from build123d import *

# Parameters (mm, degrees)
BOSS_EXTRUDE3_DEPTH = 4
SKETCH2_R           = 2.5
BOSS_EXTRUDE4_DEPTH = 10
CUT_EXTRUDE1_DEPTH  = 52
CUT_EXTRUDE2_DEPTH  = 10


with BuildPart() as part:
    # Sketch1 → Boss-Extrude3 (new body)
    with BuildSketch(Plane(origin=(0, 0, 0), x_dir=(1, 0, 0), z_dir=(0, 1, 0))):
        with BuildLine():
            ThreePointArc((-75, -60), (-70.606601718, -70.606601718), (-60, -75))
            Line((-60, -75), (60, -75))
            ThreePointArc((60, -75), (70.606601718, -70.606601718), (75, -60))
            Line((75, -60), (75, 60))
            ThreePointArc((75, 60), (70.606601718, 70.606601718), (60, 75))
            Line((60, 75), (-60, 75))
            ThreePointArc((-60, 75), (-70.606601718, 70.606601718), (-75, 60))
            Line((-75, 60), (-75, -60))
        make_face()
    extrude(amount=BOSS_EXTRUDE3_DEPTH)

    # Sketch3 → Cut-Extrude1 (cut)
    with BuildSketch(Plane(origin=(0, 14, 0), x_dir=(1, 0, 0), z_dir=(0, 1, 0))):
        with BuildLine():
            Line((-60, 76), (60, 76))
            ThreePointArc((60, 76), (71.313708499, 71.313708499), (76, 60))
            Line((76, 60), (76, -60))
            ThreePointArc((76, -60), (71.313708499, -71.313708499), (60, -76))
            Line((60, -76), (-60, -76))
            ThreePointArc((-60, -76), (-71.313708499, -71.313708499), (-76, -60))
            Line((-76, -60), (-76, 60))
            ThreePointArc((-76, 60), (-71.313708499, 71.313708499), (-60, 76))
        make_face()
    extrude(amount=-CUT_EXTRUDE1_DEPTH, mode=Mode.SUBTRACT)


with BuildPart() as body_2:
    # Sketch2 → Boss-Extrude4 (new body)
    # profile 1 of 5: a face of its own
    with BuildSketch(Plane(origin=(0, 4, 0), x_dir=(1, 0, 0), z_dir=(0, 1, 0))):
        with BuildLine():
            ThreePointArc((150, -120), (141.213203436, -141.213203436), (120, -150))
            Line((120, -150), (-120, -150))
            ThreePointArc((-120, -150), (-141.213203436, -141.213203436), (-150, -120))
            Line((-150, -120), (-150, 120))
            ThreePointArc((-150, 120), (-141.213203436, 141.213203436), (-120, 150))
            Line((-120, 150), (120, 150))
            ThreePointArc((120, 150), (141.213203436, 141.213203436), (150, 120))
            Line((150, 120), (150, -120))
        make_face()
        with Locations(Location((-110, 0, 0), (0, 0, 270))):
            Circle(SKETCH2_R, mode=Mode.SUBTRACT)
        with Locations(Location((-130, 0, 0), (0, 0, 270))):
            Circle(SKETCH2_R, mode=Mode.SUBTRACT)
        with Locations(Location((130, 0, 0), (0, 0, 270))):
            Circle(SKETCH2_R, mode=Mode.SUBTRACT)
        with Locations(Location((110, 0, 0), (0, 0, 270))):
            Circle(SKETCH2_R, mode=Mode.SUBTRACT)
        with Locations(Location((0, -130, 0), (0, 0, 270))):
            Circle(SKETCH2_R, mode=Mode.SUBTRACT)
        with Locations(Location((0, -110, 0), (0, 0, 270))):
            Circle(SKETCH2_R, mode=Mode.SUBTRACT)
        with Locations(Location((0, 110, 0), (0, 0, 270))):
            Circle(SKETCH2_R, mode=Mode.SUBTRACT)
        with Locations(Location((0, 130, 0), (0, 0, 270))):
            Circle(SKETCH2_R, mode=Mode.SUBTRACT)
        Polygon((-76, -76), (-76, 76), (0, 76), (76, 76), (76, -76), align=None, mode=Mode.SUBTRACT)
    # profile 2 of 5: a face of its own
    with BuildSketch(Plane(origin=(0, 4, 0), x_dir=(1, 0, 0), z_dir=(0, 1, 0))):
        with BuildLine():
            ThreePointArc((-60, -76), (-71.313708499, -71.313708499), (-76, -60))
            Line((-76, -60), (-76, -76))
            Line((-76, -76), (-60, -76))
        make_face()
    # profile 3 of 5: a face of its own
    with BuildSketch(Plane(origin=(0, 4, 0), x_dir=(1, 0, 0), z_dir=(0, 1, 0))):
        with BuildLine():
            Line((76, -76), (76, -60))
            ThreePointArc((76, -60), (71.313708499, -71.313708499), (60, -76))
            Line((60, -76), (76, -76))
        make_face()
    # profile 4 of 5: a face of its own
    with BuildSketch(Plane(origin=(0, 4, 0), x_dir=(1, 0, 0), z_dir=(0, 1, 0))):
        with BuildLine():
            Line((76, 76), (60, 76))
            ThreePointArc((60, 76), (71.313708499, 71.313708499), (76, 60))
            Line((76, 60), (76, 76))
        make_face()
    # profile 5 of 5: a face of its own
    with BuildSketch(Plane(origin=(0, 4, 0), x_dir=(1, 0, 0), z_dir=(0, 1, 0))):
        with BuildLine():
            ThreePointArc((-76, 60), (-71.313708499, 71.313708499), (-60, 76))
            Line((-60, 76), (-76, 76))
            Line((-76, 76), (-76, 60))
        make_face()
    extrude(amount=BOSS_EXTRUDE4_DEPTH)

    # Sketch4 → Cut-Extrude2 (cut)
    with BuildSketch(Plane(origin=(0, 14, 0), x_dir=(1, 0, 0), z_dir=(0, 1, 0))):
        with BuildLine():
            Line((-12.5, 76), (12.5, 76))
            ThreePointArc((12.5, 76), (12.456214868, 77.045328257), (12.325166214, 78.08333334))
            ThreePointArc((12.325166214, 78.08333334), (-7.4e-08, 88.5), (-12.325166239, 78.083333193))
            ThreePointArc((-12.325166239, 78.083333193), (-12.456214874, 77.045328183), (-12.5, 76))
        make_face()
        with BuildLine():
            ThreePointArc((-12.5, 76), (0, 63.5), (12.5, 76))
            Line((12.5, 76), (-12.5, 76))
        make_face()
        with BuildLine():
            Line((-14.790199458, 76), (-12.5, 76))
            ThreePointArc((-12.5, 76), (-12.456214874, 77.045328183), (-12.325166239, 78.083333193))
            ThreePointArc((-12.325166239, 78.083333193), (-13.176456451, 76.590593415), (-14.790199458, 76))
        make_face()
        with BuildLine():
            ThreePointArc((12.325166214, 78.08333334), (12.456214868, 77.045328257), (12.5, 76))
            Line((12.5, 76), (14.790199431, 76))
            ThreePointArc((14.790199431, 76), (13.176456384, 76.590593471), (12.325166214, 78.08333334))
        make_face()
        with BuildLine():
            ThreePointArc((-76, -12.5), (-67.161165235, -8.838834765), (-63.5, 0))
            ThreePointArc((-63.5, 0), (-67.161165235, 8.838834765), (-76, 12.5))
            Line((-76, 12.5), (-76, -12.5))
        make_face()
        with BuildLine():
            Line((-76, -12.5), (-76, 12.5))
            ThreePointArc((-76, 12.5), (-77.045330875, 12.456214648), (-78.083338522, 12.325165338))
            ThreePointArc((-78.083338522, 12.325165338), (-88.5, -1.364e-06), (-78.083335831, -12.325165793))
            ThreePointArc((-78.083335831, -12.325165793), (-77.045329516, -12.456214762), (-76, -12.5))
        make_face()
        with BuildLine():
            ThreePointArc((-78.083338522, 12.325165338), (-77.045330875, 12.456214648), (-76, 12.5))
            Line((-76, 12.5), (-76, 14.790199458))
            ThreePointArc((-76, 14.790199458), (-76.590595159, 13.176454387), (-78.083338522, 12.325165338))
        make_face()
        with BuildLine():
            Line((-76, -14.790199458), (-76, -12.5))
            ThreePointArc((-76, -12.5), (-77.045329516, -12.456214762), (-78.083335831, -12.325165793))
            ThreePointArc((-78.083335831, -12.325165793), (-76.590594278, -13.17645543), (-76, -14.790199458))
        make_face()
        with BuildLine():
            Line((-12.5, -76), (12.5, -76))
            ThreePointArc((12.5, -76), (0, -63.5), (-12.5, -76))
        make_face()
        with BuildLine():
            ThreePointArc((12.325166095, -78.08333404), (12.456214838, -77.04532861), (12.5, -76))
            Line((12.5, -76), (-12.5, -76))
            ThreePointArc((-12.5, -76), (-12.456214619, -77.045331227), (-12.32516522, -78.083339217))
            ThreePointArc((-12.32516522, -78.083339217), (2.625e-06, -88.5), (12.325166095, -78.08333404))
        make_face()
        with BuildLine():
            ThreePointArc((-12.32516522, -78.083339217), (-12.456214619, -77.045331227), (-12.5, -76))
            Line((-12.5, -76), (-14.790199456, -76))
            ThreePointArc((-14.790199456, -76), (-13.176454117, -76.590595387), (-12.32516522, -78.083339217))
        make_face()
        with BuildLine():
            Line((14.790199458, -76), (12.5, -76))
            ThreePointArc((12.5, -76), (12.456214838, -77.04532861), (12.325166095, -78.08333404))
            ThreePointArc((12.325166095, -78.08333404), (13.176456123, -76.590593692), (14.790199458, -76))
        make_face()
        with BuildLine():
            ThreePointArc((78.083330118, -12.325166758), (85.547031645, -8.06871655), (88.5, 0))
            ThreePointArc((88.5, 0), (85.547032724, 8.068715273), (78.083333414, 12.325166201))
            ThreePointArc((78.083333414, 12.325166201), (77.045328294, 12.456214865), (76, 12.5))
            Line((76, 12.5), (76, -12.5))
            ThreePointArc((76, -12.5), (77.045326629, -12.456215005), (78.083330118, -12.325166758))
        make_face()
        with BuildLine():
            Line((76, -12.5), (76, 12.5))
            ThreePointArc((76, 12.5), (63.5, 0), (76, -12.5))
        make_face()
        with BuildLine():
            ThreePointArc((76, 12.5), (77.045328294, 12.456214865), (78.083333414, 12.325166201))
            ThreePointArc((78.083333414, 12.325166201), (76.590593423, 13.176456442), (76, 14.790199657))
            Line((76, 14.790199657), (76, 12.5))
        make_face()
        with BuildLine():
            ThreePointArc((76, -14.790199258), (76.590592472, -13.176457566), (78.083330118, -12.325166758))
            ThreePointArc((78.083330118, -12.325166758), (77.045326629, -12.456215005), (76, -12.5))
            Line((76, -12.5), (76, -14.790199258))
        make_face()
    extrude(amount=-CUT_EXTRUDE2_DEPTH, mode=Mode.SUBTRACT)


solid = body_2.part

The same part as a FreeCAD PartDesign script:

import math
import FreeCAD as App
import Part
import Sketcher

V = App.Vector
Q = App.Units.Quantity

doc = App.newDocument("Part")
body = doc.addObject("PartDesign::Body", "Body")

# Sketch on XZ plane
sketch1 = body.newObject("Sketcher::SketchObject", "Sketch")
sketch1.AttachmentSupport = (doc.getObject("XZ_Plane"), [""])
sketch1.MapMode = "FlatFace"
sketch1.addGeometry([
    Part.ArcOfCircle(Part.Circle(V(-60, 60, 0), V(0, 0, 1), 15), math.radians(90), math.radians(180)),  # 0
    Part.LineSegment(V(-60, 75, 0), V(60, 75, 0)),  # 1
    Part.ArcOfCircle(Part.Circle(V(60, 60, 0), V(0, 0, 1), 15), math.radians(0), math.radians(90)),  # 2
    Part.LineSegment(V(75, 60, 0), V(75, -60, 0)),  # 3
    Part.ArcOfCircle(Part.Circle(V(60, -60, 0), V(0, 0, 1), 15), math.radians(-90), math.radians(0)),  # 4
    Part.LineSegment(V(60, -75, 0), V(-60, -75, 0)),  # 5
    Part.ArcOfCircle(Part.Circle(V(-60, -60, 0), V(0, 0, 1), 15), math.radians(180), math.radians(270)),  # 6
    Part.LineSegment(V(-75, -60, 0), V(-75, 60, 0)),  # 7
], False)
sketch1.addConstraint([
    Sketcher.Constraint("Tangent", 0, 1, 1, 1),
    Sketcher.Constraint("Tangent", 1, 2, 2, 2),
    Sketcher.Constraint("Tangent", 2, 1, 3, 1),
    Sketcher.Constraint("Tangent", 3, 2, 4, 2),
    Sketcher.Constraint("Tangent", 4, 1, 5, 1),
    Sketcher.Constraint("Tangent", 5, 2, 6, 2),
    Sketcher.Constraint("Tangent", 6, 1, 7, 1),
    Sketcher.Constraint("Tangent", 7, 2, 0, 2),
    Sketcher.Constraint("Horizontal", 1),
    Sketcher.Constraint("Vertical", 3),
    Sketcher.Constraint("Horizontal", 5),
    Sketcher.Constraint("Vertical", 7),
    Sketcher.Constraint("Equal", 0, 2),
    Sketcher.Constraint("Equal", 2, 4),
    Sketcher.Constraint("Equal", 4, 6),
    Sketcher.Constraint("Symmetric", 0, 3, 4, 3, -1, 1),
    Sketcher.Constraint("Equal", 5, 3),
    Sketcher.Constraint("Radius", 0, Q("15 mm")),
    Sketcher.Constraint("DistanceX", 1, 1, 1, 2, Q("120 mm")),
])
pad1 = body.newObject("PartDesign::Pad", "Pad")
pad1.Profile = sketch1
pad1.Length = 4
pad1.Reversed = True

# Sketch on XZ plane
sketch2 = body.newObject("Sketcher::SketchObject", "Sketch001")
sketch2.AttachmentSupport = (doc.getObject("XZ_Plane"), [""])
sketch2.MapMode = "FlatFace"
sketch2.AttachmentOffset = App.Placement(V(0, 0, -14), App.Rotation())
sketch2.addGeometry([
    Part.LineSegment(V(60, -76, 0), V(-60, -76, 0)),  # 0
    Part.ArcOfCircle(Part.Circle(V(-60, -60, 0), V(0, 0, 1), 16), math.radians(180), math.radians(270)),  # 1
    Part.LineSegment(V(-76, -60, 0), V(-76, 60, 0)),  # 2
    Part.ArcOfCircle(Part.Circle(V(-60, 60, 0), V(0, 0, 1), 16), math.radians(90), math.radians(180)),  # 3
    Part.LineSegment(V(-60, 76, 0), V(60, 76, 0)),  # 4
    Part.ArcOfCircle(Part.Circle(V(60, 60, 0), V(0, 0, 1), 16), math.radians(0), math.radians(90)),  # 5
    Part.LineSegment(V(76, 60, 0), V(76, -60, 0)),  # 6
    Part.ArcOfCircle(Part.Circle(V(60, -60, 0), V(0, 0, 1), 16), math.radians(-90), math.radians(0)),  # 7
], False)
sketch2.addConstraint([
    Sketcher.Constraint("Tangent", 0, 2, 1, 2),
    Sketcher.Constraint("Tangent", 1, 1, 2, 1),
    Sketcher.Constraint("Tangent", 2, 2, 3, 2),
    Sketcher.Constraint("Tangent", 3, 1, 4, 1),
    Sketcher.Constraint("Tangent", 4, 2, 5, 2),
    Sketcher.Constraint("Tangent", 5, 1, 6, 1),
    Sketcher.Constraint("Tangent", 6, 2, 7, 2),
    Sketcher.Constraint("Tangent", 7, 1, 0, 1),
    Sketcher.Constraint("Horizontal", 0),
    Sketcher.Constraint("Vertical", 2),
    Sketcher.Constraint("Horizontal", 4),
    Sketcher.Constraint("Vertical", 6),
    Sketcher.Constraint("Equal", 1, 3),
    Sketcher.Constraint("Equal", 3, 5),
    Sketcher.Constraint("Equal", 5, 7),
    Sketcher.Constraint("Symmetric", 1, 3, 5, 3, -1, 1),
    Sketcher.Constraint("Equal", 4, 2),
    Sketcher.Constraint("Radius", 1, Q("16 mm")),
    Sketcher.Constraint("DistanceX", 0, 2, 0, 1, Q("120 mm")),
])
pocket1 = body.newObject("PartDesign::Pocket", "Pocket")
pocket1.Profile = sketch2
pocket1.Length = 52
pocket1.Reversed = True
body2 = doc.addObject("PartDesign::Body", "Body001")

# Sketch on XZ plane
sketch3 = body2.newObject("Sketcher::SketchObject", "Sketch002")
sketch3.AttachmentSupport = (doc.getObject("XZ_Plane001"), [""])
sketch3.MapMode = "FlatFace"
sketch3.AttachmentOffset = App.Placement(V(0, 0, -4), App.Rotation())
sketch3.addGeometry([
    Part.ArcOfCircle(Part.Circle(V(120, 120, 0), V(0, 0, 1), 30), math.radians(0), math.radians(90)),  # 0
    Part.LineSegment(V(150, 120, 0), V(150, -120, 0)),  # 1
    Part.ArcOfCircle(Part.Circle(V(120, -120, 0), V(0, 0, 1), 30), math.radians(-90), math.radians(0)),  # 2
    Part.LineSegment(V(120, -150, 0), V(-120, -150, 0)),  # 3
    Part.ArcOfCircle(Part.Circle(V(-120, -120, 0), V(0, 0, 1), 30), math.radians(180), math.radians(270)),  # 4
    Part.LineSegment(V(-150, -120, 0), V(-150, 120, 0)),  # 5
    Part.ArcOfCircle(Part.Circle(V(-120, 120, 0), V(0, 0, 1), 30), math.radians(90), math.radians(180)),  # 6
    Part.LineSegment(V(-120, 150, 0), V(120, 150, 0)),  # 7
    Part.Circle(V(0, 130, 0), V(0, 0, 1), 2.5),  # 8
    Part.Circle(V(0, 110, 0), V(0, 0, 1), 2.5),  # 9
    Part.Circle(V(130, 0, 0), V(0, 0, 1), 2.5),  # 10
    Part.Circle(V(110, 0, 0), V(0, 0, 1), 2.5),  # 11
    Part.LineSegment(V(-76, 60, 0), V(-76, -60, 0)),  # 12
    Part.ArcOfCircle(Part.Circle(V(-60, -60, 0), V(0, 0, 1), 16), math.radians(180), math.radians(270)),  # 13
    Part.LineSegment(V(-60, -76, 0), V(60, -76, 0)),  # 14
    Part.ArcOfCircle(Part.Circle(V(60, -60, 0), V(0, 0, 1), 16), math.radians(-90), math.radians(0)),  # 15
    Part.LineSegment(V(76, -60, 0), V(76, 60, 0)),  # 16
    Part.ArcOfCircle(Part.Circle(V(60, 60, 0), V(0, 0, 1), 16), math.radians(0), math.radians(90)),  # 17
    Part.LineSegment(V(60, 76, 0), V(-60, 76, 0)),  # 18
    Part.ArcOfCircle(Part.Circle(V(-60, 60, 0), V(0, 0, 1), 16), math.radians(90), math.radians(180)),  # 19
    Part.Circle(V(-110, 0, 0), V(0, 0, 1), 2.5),  # 20
    Part.Circle(V(-130, 0, 0), V(0, 0, 1), 2.5),  # 21
    Part.Circle(V(0, -110, 0), V(0, 0, 1), 2.5),  # 22
    Part.Circle(V(0, -130, 0), V(0, 0, 1), 2.5),  # 23
], False)
sketch3.addConstraint([
    Sketcher.Constraint("Tangent", 0, 1, 1, 1),
    Sketcher.Constraint("Tangent", 1, 2, 2, 2),
    Sketcher.Constraint("Tangent", 2, 1, 3, 1),
    Sketcher.Constraint("Tangent", 3, 2, 4, 2),
    Sketcher.Constraint("Tangent", 4, 1, 5, 1),
    Sketcher.Constraint("Tangent", 5, 2, 6, 2),
    Sketcher.Constraint("Tangent", 6, 1, 7, 1),
    Sketcher.Constraint("Tangent", 7, 2, 0, 2),
    Sketcher.Constraint("Tangent", 12, 2, 13, 1),
    Sketcher.Constraint("Tangent", 13, 2, 14, 1),
    Sketcher.Constraint("Tangent", 14, 2, 15, 1),
    Sketcher.Constraint("Tangent", 15, 2, 16, 1),
    Sketcher.Constraint("Tangent", 16, 2, 17, 1),
    Sketcher.Constraint("Tangent", 17, 2, 18, 1),
    Sketcher.Constraint("Tangent", 18, 2, 19, 1),
    Sketcher.Constraint("Tangent", 19, 2, 12, 1),
    Sketcher.Constraint("Vertical", 1),
    Sketcher.Constraint("Horizontal", 3),
    Sketcher.Constraint("Vertical", 5),
    Sketcher.Constraint("Horizontal", 7),
    Sketcher.Constraint("Vertical", 12),
    Sketcher.Constraint("Horizontal", 14),
    Sketcher.Constraint("Vertical", 16),
    Sketcher.Constraint("Horizontal", 18),
    Sketcher.Constraint("Equal", 0, 2),
    Sketcher.Constraint("Equal", 2, 4),
    Sketcher.Constraint("Equal", 4, 6),
    Sketcher.Constraint("Equal", 8, 9),
    Sketcher.Constraint("Equal", 9, 10),
    Sketcher.Constraint("Equal", 10, 11),
    Sketcher.Constraint("Equal", 13, 15),
    Sketcher.Constraint("Equal", 15, 17),
    Sketcher.Constraint("Equal", 17, 19),
    Sketcher.Constraint("Equal", 11, 20),
    Sketcher.Constraint("Equal", 20, 21),
    Sketcher.Constraint("Equal", 21, 22),
    Sketcher.Constraint("Equal", 22, 23),
    Sketcher.Constraint("Symmetric", 0, 3, 4, 3, -1, 1),
    Sketcher.Constraint("Symmetric", 13, 3, 17, 3, -1, 1),
    Sketcher.Constraint("Symmetric", 11, 3, 20, 3, -1, 1),
    Sketcher.Constraint("Symmetric", 10, 3, 21, 3, -1, 1),
    Sketcher.Constraint("Symmetric", 9, 3, 22, 3, -1, 1),
    Sketcher.Constraint("Symmetric", 8, 3, 23, 3, -1, 1),
    Sketcher.Constraint("PointOnObject", 8, 3, -2),
    Sketcher.Constraint("PointOnObject", 9, 3, -2),
    Sketcher.Constraint("PointOnObject", 10, 3, -1),
    Sketcher.Constraint("PointOnObject", 11, 3, -1),
    Sketcher.Constraint("Equal", 7, 1),
    Sketcher.Constraint("Equal", 18, 12),
    Sketcher.Constraint("Diameter", 8, Q("5 mm")),
    Sketcher.Constraint("Radius", 0, Q("30 mm")),
    Sketcher.Constraint("Radius", 13, Q("16 mm")),
    Sketcher.Constraint("DistanceX", 3, 2, 3, 1, Q("240 mm")),
    Sketcher.Constraint("DistanceX", 14, 1, 14, 2, Q("120 mm")),
    Sketcher.Constraint("DistanceY", -1, 1, 8, 3, Q("130 mm")),
    Sketcher.Constraint("DistanceY", -1, 1, 9, 3, Q("110 mm")),
    Sketcher.Constraint("DistanceX", -1, 1, 10, 3, Q("130 mm")),
    Sketcher.Constraint("DistanceX", -1, 1, 11, 3, Q("110 mm")),
])
pad2 = body2.newObject("PartDesign::Pad", "Pad001")
pad2.Profile = sketch3
pad2.Length = 10
pad2.Reversed = True

# Sketch on XZ plane
sketch4 = body2.newObject("Sketcher::SketchObject", "Sketch003")
sketch4.AttachmentSupport = (doc.getObject("XZ_Plane001"), [""])
sketch4.MapMode = "FlatFace"
sketch4.AttachmentOffset = App.Placement(V(0, 0, -14), App.Rotation())
sketch4.addGeometry([
    Part.ArcOfCircle(Part.Circle(V(0, -76, 0), V(0, 0, 1), 12.5), math.radians(-170), math.radians(-10)),  # 0
    Part.ArcOfCircle(Part.Circle(V(-14.8, -78.5, 0), V(0, 0, 1), 2.5), math.radians(10), math.radians(90)),  # 1
    Part.LineSegment(V(-14.8, -76, 0), V(-12.5, -76, 0)),  # 2
    Part.ArcOfCircle(Part.Circle(V(0, -76, 0), V(0, 0, 1), 12.5), math.radians(0), math.radians(180)),  # 3
    Part.LineSegment(V(12.5, -76, 0), V(14.8, -76, 0)),  # 4
    Part.ArcOfCircle(Part.Circle(V(14.8, -78.5, 0), V(0, 0, 1), 2.5), math.radians(90), math.radians(170)),  # 5
    Part.ArcOfCircle(Part.Circle(V(-76, 0, 0), V(0, 0, 1), 12.5), math.radians(0), math.radians(90)),  # 6
    Part.ArcOfCircle(Part.Circle(V(-76, 0, 0), V(0, 0, 1), 12.5), math.radians(-90), math.radians(0)),  # 7
    Part.LineSegment(V(-76, -12.5, 0), V(-76, -14.8, 0)),  # 8
    Part.ArcOfCircle(Part.Circle(V(-78.5, -14.8, 0), V(0, 0, 1), 2.5), math.radians(0), math.radians(80)),  # 9
    Part.ArcOfCircle(Part.Circle(V(-76, 0, 0), V(0, 0, 1), 12.5), math.radians(100), math.radians(260)),  # 10
    Part.ArcOfCircle(Part.Circle(V(-78.5, 14.8, 0), V(0, 0, 1), 2.5), math.radians(-80), math.radians(0)),  # 11
    Part.LineSegment(V(-76, 14.8, 0), V(-76, 12.5, 0)),  # 12
    Part.ArcOfCircle(Part.Circle(V(0, 76, 0), V(0, 0, 1), 12.5), math.radians(180), math.radians(360)),  # 13
    Part.LineSegment(V(-12.5, 76, 0), V(-14.8, 76, 0)),  # 14
    Part.ArcOfCircle(Part.Circle(V(-14.8, 78.5, 0), V(0, 0, 1), 2.5), math.radians(-90), math.radians(-10)),  # 15
    Part.ArcOfCircle(Part.Circle(V(0, 76, 0), V(0, 0, 1), 12.5), math.radians(10), math.radians(170)),  # 16
    Part.ArcOfCircle(Part.Circle(V(14.8, 78.5, 0), V(0, 0, 1), 2.5), math.radians(-170), math.radians(-90)),  # 17
    Part.LineSegment(V(14.8, 76, 0), V(12.5, 76, 0)),  # 18
    Part.ArcOfCircle(Part.Circle(V(76, 0, 0), V(0, 0, 1), 12.5), math.radians(90), math.radians(270)),  # 19
    Part.LineSegment(V(76, 12.5, 0), V(76, 14.8, 0)),  # 20
    Part.ArcOfCircle(Part.Circle(V(78.5, 14.8, 0), V(0, 0, 1), 2.5), math.radians(-180), math.radians(-100)),  # 21
    Part.ArcOfCircle(Part.Circle(V(76, 0, 0), V(0, 0, 1), 12.5), math.radians(0), math.radians(80)),  # 22
    Part.ArcOfCircle(Part.Circle(V(76, 0, 0), V(0, 0, 1), 12.5), math.radians(-80), math.radians(0)),  # 23
    Part.ArcOfCircle(Part.Circle(V(78.5, -14.8, 0), V(0, 0, 1), 2.5), math.radians(100), math.radians(180)),  # 24
    Part.LineSegment(V(76, -14.8, 0), V(76, -12.5, 0)),  # 25
], False)
sketch4.addConstraint([
    Sketcher.Constraint("Tangent", 0, 1, 1, 1),
    Sketcher.Constraint("Tangent", 1, 2, 2, 1),
    Sketcher.Constraint("Coincident", 2, 2, 3, 2),
    Sketcher.Constraint("Coincident", 3, 1, 4, 1),
    Sketcher.Constraint("Tangent", 4, 2, 5, 1),
    Sketcher.Constraint("Tangent", 5, 2, 0, 2),
    Sketcher.Constraint("Tangent", 6, 1, 7, 2),
    Sketcher.Constraint("Coincident", 7, 1, 8, 1),
    Sketcher.Constraint("Tangent", 8, 2, 9, 1),
    Sketcher.Constraint("Coincident", 9, 2, 10, 2),
    Sketcher.Constraint("Tangent", 10, 1, 11, 1),
    Sketcher.Constraint("Tangent", 11, 2, 12, 1),
    Sketcher.Constraint("Coincident", 12, 2, 6, 2),
    Sketcher.Constraint("Coincident", 13, 1, 14, 1),
    Sketcher.Constraint("Tangent", 14, 2, 15, 1),
    Sketcher.Constraint("Coincident", 15, 2, 16, 2),
    Sketcher.Constraint("Tangent", 16, 1, 17, 1),
    Sketcher.Constraint("Tangent", 17, 2, 18, 1),
    Sketcher.Constraint("Coincident", 18, 2, 13, 2),
    Sketcher.Constraint("Coincident", 19, 1, 20, 1),
    Sketcher.Constraint("Tangent", 20, 2, 21, 1),
    Sketcher.Constraint("Tangent", 21, 2, 22, 2),
    Sketcher.Constraint("Tangent", 22, 1, 23, 2),
    Sketcher.Constraint("Tangent", 23, 1, 24, 1),
    Sketcher.Constraint("Tangent", 24, 2, 25, 1),
    Sketcher.Constraint("Coincident", 25, 2, 19, 2),
    Sketcher.Constraint("Horizontal", 2),
    Sketcher.Constraint("Horizontal", 4),
    Sketcher.Constraint("Vertical", 8),
    Sketcher.Constraint("Vertical", 12),
    Sketcher.Constraint("Horizontal", 14),
    Sketcher.Constraint("Horizontal", 18),
    Sketcher.Constraint("Vertical", 20),
    Sketcher.Constraint("Vertical", 25),
    Sketcher.Constraint("Coincident", 3, 3, 0, 3),
    Sketcher.Constraint("Coincident", 10, 3, 6, 3),
    Sketcher.Constraint("Coincident", 16, 3, 13, 3),
    Sketcher.Constraint("Coincident", 22, 3, 19, 3),
    Sketcher.Constraint("Equal", 0, 3),
    Sketcher.Constraint("Equal", 1, 5),
    Sketcher.Constraint("Equal", 3, 6),
    Sketcher.Constraint("Equal", 6, 7),
    Sketcher.Constraint("Equal", 5, 9),
    Sketcher.Constraint("Equal", 7, 10),
    Sketcher.Constraint("Equal", 9, 11),
    Sketcher.Constraint("Equal", 10, 13),
    Sketcher.Constraint("Equal", 11, 15),
    Sketcher.Constraint("Equal", 13, 16),
    Sketcher.Constraint("Equal", 15, 17),
    Sketcher.Constraint("Equal", 16, 19),
    Sketcher.Constraint("Equal", 17, 21),
    Sketcher.Constraint("Equal", 19, 22),
    Sketcher.Constraint("Equal", 22, 23),
    Sketcher.Constraint("Equal", 21, 24),
    Sketcher.Constraint("Symmetric", 0, 3, 13, 3, -1, 1),
    Sketcher.Constraint("Symmetric", 6, 3, 19, 3, -1, 1),
    Sketcher.Constraint("Symmetric", 1, 3, 5, 3, -2),
    Sketcher.Constraint("Symmetric", 11, 3, 21, 3, -2),
    Sketcher.Constraint("PointOnObject", 6, 1, -1),
    Sketcher.Constraint("PointOnObject", 22, 1, -1),
    Sketcher.Constraint("Horizontal", 15, 3, 17, 3),
    Sketcher.Constraint("Horizontal", 9, 3, 24, 3),
    Sketcher.Constraint("Horizontal", 3, 3, 1, 2),
    Sketcher.Constraint("Horizontal", 16, 3, 13, 1),
    Sketcher.Constraint("Horizontal", 9, 2, 23, 1),
    Sketcher.Constraint("Vertical", 9, 3, 11, 3),
    Sketcher.Constraint("Vertical", 10, 3, 7, 1),
    Sketcher.Constraint("Vertical", 0, 1, 15, 2),
    Sketcher.Constraint("Radius", 0, Q("12.5 mm")),
    Sketcher.Constraint("Radius", 1, Q("2.5 mm")),
    Sketcher.Constraint("DistanceY", 0, 3, -1, 1, Q("76 mm")),
    Sketcher.Constraint("DistanceX", 6, 3, -1, 1, Q("76 mm")),
])
pocket2 = body2.newObject("PartDesign::Pocket", "Pocket001")
pocket2.Profile = sketch4
pocket2.Length = 10
pocket2.Reversed = True

doc.recompute()
